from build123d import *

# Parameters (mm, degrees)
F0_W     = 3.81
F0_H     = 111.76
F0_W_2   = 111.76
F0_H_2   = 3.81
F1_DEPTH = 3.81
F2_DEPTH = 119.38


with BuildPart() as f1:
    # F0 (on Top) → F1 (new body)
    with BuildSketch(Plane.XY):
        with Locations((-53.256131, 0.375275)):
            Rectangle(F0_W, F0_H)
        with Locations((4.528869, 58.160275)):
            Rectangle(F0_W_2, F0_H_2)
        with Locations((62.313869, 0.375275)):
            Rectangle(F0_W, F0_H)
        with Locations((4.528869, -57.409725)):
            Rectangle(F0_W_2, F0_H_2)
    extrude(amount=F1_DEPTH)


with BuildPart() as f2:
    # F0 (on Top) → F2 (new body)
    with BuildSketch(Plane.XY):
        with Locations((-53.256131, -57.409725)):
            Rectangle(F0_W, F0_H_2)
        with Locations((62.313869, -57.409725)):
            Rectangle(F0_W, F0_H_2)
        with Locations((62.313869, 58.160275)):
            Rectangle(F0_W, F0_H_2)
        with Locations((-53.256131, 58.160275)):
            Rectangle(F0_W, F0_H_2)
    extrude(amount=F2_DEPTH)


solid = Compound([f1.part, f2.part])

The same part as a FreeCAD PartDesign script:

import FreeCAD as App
import Part
import Sketcher

V = App.Vector
Q = App.Units.Quantity


def add_polygon(sketch, points):
    """Adds a closed chain of lines whose ends are joined by coincident constraints."""
    first, n = sketch.GeometryCount, len(points)
    for a, b in zip(points, points[1:] + points[:1]):
        sketch.addGeometry(Part.LineSegment(App.Vector(*a, 0), App.Vector(*b, 0)), False)
    for i in range(n):
        sketch.addConstraint(Sketcher.Constraint("Coincident", first + i, 2, first + (i + 1) % n, 1))

doc = App.newDocument("Part")
body = doc.addObject("PartDesign::Body", "Body")
body.AllowCompound = True

# Sketch on XY plane
sketch1 = doc.addObject("Sketcher::SketchObject", "Sketch")
body.addObject(sketch1)
sketch1.AttachmentSupport = (doc.XY_Plane, [""])
sketch1.MapMode = "FlatFace"
add_polygon(sketch1, [(-55.2, 56.3), (-55.2, -55.5), (-51.4, -55.5), (-51.4, 56.3)])  # lines 0-3
add_polygon(sketch1, [(-51.4, 60.1), (-51.4, 56.3), (60.4, 56.3), (60.4, 60.1)])  # lines 4-7
add_polygon(sketch1, [(60.4, 56.3), (60.4, -55.5), (64.2, -55.5), (64.2, 56.3)])  # lines 8-11
add_polygon(sketch1, [(-51.4, -55.5), (-51.4, -59.3), (60.4, -59.3), (60.4, -55.5)])  # lines 12-15
sketch1.addConstraint(Sketcher.Constraint("Vertical", 0))
sketch1.addConstraint(Sketcher.Constraint("Horizontal", 1))
sketch1.addConstraint(Sketcher.Constraint("Vertical", 2))
sketch1.addConstraint(Sketcher.Constraint("Horizontal", 3))
sketch1.addConstraint(Sketcher.Constraint("Vertical", 4))
sketch1.addConstraint(Sketcher.Constraint("Horizontal", 5))
sketch1.addConstraint(Sketcher.Constraint("Vertical", 6))
sketch1.addConstraint(Sketcher.Constraint("Horizontal", 7))
sketch1.addConstraint(Sketcher.Constraint("Vertical", 8))
sketch1.addConstraint(Sketcher.Constraint("Horizontal", 9))
sketch1.addConstraint(Sketcher.Constraint("Vertical", 10))
sketch1.addConstraint(Sketcher.Constraint("Horizontal", 11))
sketch1.addConstraint(Sketcher.Constraint("Vertical", 12))
sketch1.addConstraint(Sketcher.Constraint("Horizontal", 13))
sketch1.addConstraint(Sketcher.Constraint("Vertical", 14))
sketch1.addConstraint(Sketcher.Constraint("Horizontal", 15))
sketch1.addConstraint(Sketcher.Constraint("Coincident", 4, 2, 2, 2))
sketch1.addConstraint(Sketcher.Constraint("Coincident", 11, 2, 5, 2))
sketch1.addConstraint(Sketcher.Constraint("Coincident", 14, 2, 8, 2))
sketch1.addConstraint(Sketcher.Constraint("Coincident", 15, 2, 1, 2))
sketch1.addConstraint(Sketcher.Constraint("Equal", 3, 9))
sketch1.addConstraint(Sketcher.Constraint("Equal", 15, 0))
sketch1.addConstraint(Sketcher.Constraint("Equal", 11, 4))
sketch1.addConstraint(Sketcher.Constraint("Equal", 6, 12))
sketch1.addConstraint(Sketcher.Constraint("DistanceX", 5, 1, 5, 2, Q("4.4 in")))
sketch1.addConstraint(Sketcher.Constraint("DistanceX", 1, 1, 1, 2, Q("0.15 in")))
sketch1.addConstraint(Sketcher.Constraint("DistanceX", 0, 2, -1, 1, 55.161131))
sketch1.addConstraint(Sketcher.Constraint("DistanceY", 0, 2, -1, 1, 55.504725))
pad1 = doc.addObject("PartDesign::Pad", "Pad")
body.addObject(pad1)
pad1.Profile = sketch1
pad1.Length = Q("0.15 in")
body2 = doc.addObject("PartDesign::Body", "Body001")
body2.AllowCompound = True

# Sketch on XY plane
sketch2 = doc.addObject("Sketcher::SketchObject", "Sketch001")
body2.addObject(sketch2)
sketch2.AttachmentSupport = (doc.getObject("XY_Plane001"), [""])
sketch2.MapMode = "FlatFace"
add_polygon(sketch2, [(-55.2, -55.5), (-55.2, -59.3), (-51.4, -59.3), (-51.4, -55.5)])  # lines 0-3
add_polygon(sketch2, [(60.4, -55.5), (60.4, -59.3), (64.2, -59.3), (64.2, -55.5)])  # lines 4-7
add_polygon(sketch2, [(60.4, 60.1), (60.4, 56.3), (64.2, 56.3), (64.2, 60.1)])  # lines 8-11
add_polygon(sketch2, [(-55.2, 60.1), (-55.2, 56.3), (-51.4, 56.3), (-51.4, 60.1)])  # lines 12-15
sketch2.addConstraint(Sketcher.Constraint("Vertical", 0))
sketch2.addConstraint(Sketcher.Constraint("Horizontal", 1))
sketch2.addConstraint(Sketcher.Constraint("Vertical", 2))
sketch2.addConstraint(Sketcher.Constraint("Horizontal", 3))
sketch2.addConstraint(Sketcher.Constraint("Vertical", 4))
sketch2.addConstraint(Sketcher.Constraint("Horizontal", 5))
sketch2.addConstraint(Sketcher.Constraint("Vertical", 6))
sketch2.addConstraint(Sketcher.Constraint("Horizontal", 7))
sketch2.addConstraint(Sketcher.Constraint("Vertical", 8))
sketch2.addConstraint(Sketcher.Constraint("Horizontal", 9))
sketch2.addConstraint(Sketcher.Constraint("Vertical", 10))
sketch2.addConstraint(Sketcher.Constraint("Horizontal", 11))
sketch2.addConstraint(Sketcher.Constraint("Vertical", 12))
sketch2.addConstraint(Sketcher.Constraint("Horizontal", 13))
sketch2.addConstraint(Sketcher.Constraint("Vertical", 14))
sketch2.addConstraint(Sketcher.Constraint("Horizontal", 15))
sketch2.addConstraint(Sketcher.Constraint("Horizontal", 1, 2, 4, 2))
sketch2.addConstraint(Sketcher.Constraint("Horizontal", 3, 2, 6, 2))
sketch2.addConstraint(Sketcher.Constraint("Horizontal", 9, 2, 12, 2))
sketch2.addConstraint(Sketcher.Constraint("Horizontal", 11, 2, 14, 2))
sketch2.addConstraint(Sketcher.Constraint("Vertical", 7, 2, 8, 2))
sketch2.addConstraint(Sketcher.Constraint("Vertical", 6, 2, 9, 2))
sketch2.addConstraint(Sketcher.Constraint("Vertical", 3, 2, 12, 2))
sketch2.addConstraint(Sketcher.Constraint("Vertical", 2, 2, 13, 2))
sketch2.addConstraint(Sketcher.Constraint("Equal", 3, 5))
sketch2.addConstraint(Sketcher.Constraint("Equal", 15, 0))
sketch2.addConstraint(Sketcher.Constraint("Equal", 6, 8))
sketch2.addConstraint(Sketcher.Constraint("DistanceX", 1, 1, 1, 2, Q("0.15 in")))
sketch2.addConstraint(Sketcher.Constraint("DistanceX", 1, 2, 4, 2, Q("4.4 in")))
sketch2.addConstraint(Sketcher.Constraint("DistanceY", 7, 2, 8, 2, Q("4.4 in")))
sketch2.addConstraint(Sketcher.Constraint("DistanceX", 0, 2, -1, 1, 55.161131))
sketch2.addConstraint(Sketcher.Constraint("DistanceY", 0, 2, -1, 1, 59.314725))
pad2 = doc.addObject("PartDesign::Pad", "Pad001")
body2.addObject(pad2)
pad2.Profile = sketch2
pad2.Length = Q("4.7 in")

doc.recompute()
